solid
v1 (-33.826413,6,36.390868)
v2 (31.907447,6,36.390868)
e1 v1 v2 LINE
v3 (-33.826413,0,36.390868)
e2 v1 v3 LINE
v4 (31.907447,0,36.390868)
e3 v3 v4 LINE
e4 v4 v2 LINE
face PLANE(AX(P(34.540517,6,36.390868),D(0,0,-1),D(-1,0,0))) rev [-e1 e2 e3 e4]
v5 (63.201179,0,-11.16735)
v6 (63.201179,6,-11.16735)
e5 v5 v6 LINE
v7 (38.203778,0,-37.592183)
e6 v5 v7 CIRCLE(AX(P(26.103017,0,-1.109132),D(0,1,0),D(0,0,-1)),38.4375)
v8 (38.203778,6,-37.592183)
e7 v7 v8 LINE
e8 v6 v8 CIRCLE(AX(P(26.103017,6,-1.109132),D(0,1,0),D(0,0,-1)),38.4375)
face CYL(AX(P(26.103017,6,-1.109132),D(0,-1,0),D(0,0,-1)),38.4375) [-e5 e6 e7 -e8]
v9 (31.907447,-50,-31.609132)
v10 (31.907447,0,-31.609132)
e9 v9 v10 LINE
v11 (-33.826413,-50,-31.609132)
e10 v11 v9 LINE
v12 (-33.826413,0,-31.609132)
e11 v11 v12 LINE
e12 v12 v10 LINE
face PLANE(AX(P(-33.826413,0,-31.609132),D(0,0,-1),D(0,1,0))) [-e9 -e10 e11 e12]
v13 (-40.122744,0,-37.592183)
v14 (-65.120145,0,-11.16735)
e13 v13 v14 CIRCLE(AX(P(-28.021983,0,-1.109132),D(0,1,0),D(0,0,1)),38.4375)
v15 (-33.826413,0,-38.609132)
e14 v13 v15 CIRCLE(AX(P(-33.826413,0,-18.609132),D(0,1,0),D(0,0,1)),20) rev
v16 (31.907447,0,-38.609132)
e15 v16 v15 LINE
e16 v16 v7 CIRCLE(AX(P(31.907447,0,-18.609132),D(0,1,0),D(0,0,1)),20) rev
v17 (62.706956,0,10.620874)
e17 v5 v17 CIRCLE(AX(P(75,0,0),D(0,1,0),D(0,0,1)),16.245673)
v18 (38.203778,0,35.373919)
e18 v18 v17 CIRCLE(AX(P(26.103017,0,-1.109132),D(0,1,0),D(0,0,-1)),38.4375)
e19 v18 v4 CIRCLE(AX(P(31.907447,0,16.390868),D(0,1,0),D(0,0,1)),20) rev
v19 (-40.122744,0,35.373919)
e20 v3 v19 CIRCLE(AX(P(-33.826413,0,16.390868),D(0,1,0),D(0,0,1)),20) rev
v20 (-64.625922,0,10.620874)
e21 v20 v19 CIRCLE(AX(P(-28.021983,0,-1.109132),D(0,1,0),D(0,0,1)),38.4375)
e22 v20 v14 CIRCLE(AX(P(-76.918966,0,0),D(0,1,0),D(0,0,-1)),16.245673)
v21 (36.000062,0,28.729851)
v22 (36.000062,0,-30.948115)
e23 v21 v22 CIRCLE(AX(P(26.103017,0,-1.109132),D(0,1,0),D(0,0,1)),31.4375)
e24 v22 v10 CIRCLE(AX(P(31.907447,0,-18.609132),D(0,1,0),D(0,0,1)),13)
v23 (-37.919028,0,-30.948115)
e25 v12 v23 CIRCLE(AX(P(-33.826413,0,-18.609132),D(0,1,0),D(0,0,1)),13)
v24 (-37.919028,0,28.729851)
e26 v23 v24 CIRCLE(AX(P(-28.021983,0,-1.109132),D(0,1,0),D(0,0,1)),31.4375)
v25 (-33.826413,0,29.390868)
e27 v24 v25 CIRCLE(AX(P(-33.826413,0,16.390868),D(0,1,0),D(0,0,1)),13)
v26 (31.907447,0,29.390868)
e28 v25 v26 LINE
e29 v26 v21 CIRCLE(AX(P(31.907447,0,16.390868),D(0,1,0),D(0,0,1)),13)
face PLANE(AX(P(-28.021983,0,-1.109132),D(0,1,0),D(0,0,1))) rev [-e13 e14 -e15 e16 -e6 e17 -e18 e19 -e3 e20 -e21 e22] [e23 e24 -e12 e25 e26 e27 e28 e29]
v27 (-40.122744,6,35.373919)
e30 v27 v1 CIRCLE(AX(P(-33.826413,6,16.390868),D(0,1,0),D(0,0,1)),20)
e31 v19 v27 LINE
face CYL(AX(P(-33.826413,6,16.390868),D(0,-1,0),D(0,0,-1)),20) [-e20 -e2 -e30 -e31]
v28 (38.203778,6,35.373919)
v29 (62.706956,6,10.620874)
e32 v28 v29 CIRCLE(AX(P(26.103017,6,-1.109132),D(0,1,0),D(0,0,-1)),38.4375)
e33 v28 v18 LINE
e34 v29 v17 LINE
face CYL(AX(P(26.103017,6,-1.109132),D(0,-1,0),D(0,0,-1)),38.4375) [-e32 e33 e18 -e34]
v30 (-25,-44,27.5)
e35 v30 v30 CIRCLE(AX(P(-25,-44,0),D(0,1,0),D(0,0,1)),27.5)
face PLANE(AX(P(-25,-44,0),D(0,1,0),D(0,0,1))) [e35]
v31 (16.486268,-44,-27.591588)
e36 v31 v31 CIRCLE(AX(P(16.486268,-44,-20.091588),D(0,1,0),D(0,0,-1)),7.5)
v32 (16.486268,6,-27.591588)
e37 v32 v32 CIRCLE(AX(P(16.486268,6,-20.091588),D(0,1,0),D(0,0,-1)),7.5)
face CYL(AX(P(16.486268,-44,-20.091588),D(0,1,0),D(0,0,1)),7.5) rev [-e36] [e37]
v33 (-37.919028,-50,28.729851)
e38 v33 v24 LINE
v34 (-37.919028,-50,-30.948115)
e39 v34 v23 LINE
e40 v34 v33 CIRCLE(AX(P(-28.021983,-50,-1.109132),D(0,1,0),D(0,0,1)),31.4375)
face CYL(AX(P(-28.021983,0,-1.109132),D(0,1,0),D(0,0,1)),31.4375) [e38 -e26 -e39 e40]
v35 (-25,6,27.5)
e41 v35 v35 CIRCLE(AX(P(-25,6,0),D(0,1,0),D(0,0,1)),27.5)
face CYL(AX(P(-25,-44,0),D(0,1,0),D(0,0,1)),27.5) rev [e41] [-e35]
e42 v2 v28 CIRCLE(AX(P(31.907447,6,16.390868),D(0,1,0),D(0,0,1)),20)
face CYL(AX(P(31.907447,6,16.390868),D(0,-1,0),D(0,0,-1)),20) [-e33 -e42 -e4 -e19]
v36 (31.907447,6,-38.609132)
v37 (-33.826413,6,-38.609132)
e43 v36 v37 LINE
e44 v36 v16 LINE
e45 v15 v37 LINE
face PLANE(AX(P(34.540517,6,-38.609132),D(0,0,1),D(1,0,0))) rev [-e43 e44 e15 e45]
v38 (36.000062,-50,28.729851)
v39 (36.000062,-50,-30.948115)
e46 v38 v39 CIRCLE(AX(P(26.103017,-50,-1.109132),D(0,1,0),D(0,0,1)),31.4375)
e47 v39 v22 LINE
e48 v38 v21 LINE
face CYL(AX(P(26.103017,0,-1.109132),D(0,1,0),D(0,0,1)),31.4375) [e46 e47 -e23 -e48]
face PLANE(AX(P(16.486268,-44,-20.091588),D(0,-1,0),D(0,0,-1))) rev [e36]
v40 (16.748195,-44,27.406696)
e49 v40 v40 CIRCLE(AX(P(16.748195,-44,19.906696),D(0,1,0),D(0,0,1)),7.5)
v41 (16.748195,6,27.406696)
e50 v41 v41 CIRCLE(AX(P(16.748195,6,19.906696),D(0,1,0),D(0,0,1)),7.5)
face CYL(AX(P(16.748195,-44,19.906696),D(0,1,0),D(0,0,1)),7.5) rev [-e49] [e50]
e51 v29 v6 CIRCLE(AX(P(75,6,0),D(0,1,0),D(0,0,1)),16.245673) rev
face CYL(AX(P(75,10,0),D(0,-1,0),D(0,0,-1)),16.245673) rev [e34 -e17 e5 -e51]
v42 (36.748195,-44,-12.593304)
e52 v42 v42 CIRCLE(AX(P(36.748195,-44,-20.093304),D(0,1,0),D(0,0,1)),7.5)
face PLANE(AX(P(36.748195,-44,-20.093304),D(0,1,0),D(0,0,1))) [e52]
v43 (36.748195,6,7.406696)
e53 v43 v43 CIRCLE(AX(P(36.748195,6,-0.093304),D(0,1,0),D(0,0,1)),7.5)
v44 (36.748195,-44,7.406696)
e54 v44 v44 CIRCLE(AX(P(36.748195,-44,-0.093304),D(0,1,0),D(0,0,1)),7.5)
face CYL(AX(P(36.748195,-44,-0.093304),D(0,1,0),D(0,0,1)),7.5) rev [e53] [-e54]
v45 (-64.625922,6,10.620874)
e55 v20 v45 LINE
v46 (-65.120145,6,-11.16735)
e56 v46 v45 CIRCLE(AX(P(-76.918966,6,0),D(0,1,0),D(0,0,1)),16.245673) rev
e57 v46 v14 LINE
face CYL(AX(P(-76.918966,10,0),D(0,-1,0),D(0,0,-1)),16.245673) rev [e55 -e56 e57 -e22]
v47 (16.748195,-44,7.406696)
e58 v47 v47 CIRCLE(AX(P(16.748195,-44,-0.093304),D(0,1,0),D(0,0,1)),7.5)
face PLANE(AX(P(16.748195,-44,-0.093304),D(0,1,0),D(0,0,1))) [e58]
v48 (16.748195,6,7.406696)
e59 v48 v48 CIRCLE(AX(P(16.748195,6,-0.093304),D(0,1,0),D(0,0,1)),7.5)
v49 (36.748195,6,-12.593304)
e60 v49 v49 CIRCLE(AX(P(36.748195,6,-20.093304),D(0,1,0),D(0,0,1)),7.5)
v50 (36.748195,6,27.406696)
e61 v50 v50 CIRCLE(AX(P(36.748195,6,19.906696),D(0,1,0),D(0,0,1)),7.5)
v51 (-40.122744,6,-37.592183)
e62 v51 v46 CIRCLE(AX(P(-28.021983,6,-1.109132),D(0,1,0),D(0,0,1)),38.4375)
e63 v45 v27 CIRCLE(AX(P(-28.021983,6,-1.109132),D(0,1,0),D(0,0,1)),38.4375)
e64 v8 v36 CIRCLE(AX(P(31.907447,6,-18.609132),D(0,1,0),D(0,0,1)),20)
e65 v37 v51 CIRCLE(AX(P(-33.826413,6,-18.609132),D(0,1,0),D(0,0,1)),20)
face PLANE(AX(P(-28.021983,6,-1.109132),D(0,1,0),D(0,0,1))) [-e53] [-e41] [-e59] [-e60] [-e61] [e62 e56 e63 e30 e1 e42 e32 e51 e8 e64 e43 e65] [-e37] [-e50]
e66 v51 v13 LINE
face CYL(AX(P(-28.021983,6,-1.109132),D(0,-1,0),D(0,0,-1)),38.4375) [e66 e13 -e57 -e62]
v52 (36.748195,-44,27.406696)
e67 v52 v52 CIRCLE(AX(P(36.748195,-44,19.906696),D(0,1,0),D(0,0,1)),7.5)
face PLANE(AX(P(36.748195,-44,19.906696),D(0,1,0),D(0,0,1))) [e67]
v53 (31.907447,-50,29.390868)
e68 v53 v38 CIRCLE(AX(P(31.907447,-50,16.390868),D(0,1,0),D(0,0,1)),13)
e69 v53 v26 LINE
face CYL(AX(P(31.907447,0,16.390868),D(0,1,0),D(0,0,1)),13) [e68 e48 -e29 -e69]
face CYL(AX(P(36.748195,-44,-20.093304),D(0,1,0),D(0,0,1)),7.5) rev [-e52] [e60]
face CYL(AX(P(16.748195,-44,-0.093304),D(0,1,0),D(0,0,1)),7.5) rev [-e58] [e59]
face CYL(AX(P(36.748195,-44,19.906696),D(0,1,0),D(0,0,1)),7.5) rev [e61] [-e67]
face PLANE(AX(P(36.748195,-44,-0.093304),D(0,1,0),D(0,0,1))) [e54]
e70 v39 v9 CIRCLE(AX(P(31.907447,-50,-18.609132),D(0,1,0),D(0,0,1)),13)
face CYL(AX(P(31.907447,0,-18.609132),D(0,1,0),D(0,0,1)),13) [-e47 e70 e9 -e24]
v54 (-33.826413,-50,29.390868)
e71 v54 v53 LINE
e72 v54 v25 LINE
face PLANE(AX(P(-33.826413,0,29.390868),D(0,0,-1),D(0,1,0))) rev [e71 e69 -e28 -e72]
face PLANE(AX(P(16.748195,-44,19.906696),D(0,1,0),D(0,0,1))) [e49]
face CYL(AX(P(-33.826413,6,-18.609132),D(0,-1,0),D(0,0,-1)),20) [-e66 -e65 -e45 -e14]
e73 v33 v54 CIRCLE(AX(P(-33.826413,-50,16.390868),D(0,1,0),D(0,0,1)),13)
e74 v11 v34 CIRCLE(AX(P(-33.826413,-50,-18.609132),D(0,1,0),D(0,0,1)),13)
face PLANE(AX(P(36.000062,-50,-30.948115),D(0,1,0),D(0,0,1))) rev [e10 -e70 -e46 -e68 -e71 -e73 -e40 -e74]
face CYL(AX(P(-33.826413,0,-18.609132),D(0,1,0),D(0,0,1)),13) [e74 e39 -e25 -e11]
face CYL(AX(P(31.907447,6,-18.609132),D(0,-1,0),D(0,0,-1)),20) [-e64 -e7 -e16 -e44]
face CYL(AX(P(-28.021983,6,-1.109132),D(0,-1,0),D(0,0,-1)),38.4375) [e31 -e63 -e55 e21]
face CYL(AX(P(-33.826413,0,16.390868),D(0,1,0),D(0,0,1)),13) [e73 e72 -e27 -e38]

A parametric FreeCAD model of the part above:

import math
import FreeCAD as App
import Part
import Sketcher
from FreeCAD import Vector


def edges_at(feature, points):
    """Names of the edges that pass closest to the given points."""
    edges = feature.Shape.Edges
    near = lambda p: min(range(len(edges)), key=lambda i: edges[i].distToShape(Part.Vertex(*p))[0])
    return sorted({f"Edge{near(p) + 1}" for p in points})


def add_polygon(sketch, points):
    """Adds a closed chain of lines whose ends are joined by coincident constraints."""
    first, n = sketch.GeometryCount, len(points)
    for a, b in zip(points, points[1:] + points[:1]):
        sketch.addGeometry(Part.LineSegment(App.Vector(*a, 0), App.Vector(*b, 0)), False)
    for i in range(n):
        sketch.addConstraint(Sketcher.Constraint("Coincident", first + i, 2, first + (i + 1) % n, 1))

doc = App.newDocument("Part")
body = doc.addObject("PartDesign::Body", "Body")

sketch1 = body.newObject("Sketcher::SketchObject", "Sketch")
sketch1.AttachmentSupport = (doc.getObject("XZ_Plane"), [""])
sketch1.MapMode = "FlatFace"
sketch1.addGeometry([
    Part.LineSegment(Vector(35, -39, 0), Vector(-36, -39, 0)),
    Part.ArcOfCircle(Part.Circle(Vector(-28, -1, 0), Vector(0, 0, 1), 38), math.radians(103), math.radians(257)),
    Part.LineSegment(Vector(-36, 36, 0), Vector(35, 36, 0)),
    Part.ArcOfCircle(Part.Circle(Vector(26, -1, 0), Vector(0, 0, 1), 38), math.radians(-77), math.radians(77)),
], False)
sketch1.addConstraint([
    Sketcher.Constraint("Coincident", 0, 2, 1, 2),
    Sketcher.Constraint("Coincident", 1, 1, 2, 1),
    Sketcher.Constraint("Coincident", 2, 2, 3, 2),
    Sketcher.Constraint("Coincident", 3, 1, 0, 1),
    Sketcher.Constraint("Horizontal", 0),
    Sketcher.Constraint("Horizontal", 2),
    Sketcher.Constraint("Equal", 1, 3),
    Sketcher.Constraint("Horizontal", 1, 3, 3, 3),
    Sketcher.Constraint("Vertical", 0, 2, 1, 1),
    Sketcher.Constraint("DistanceX", 0, 2, 0, 1, 71.0),
    Sketcher.Constraint("DistanceY", 0, 2, 1, 1, 75.0),
    Sketcher.Constraint("Radius", 1, 38.4375),
    Sketcher.Constraint("DistanceY", 1, 3, -1, 1, 1.109132),
    Sketcher.Constraint("DistanceX", 1, 3, -1, 1, 28.021983),
])
pad1 = body.newObject("PartDesign::Pad", "Pad")
pad1.Profile = sketch1
pad1.Length = 6
pad1.Reversed = True
doc.recompute()

fillet = body.newObject("PartDesign::Fillet", "Fillet")
fillet.Base = (pad1, edges_at(pad1, [
    (-36.459, 3, -38.609),
    (34.541, 3, -38.609),
    (34.541, 3, 36.391),
    (-36.459, 3, 36.391),
]))
fillet.Radius = 20

sketch2 = body.newObject("Sketcher::SketchObject", "Sketch001")
sketch2.AttachmentSupport = (doc.getObject("YZ_Plane"), [""])
sketch2.MapMode = "FlatFace"
sketch2.AttachmentOffset = App.Placement(Vector(0, 0, 31.907447), App.Rotation())
add_polygon(sketch2, [(0, -28.6), (-50, -28.6), (-50, -31.6), (0, -31.6)])
sketch2.addConstraint([
    Sketcher.Constraint("Horizontal", 0),
    Sketcher.Constraint("Vertical", 1),
    Sketcher.Constraint("Horizontal", 2),
    Sketcher.Constraint("Vertical", 3),
    Sketcher.Constraint("PointOnObject", 2, 2, -2),
    Sketcher.Constraint("DistanceX", 0, 2, 0, 1, 50.0),
    Sketcher.Constraint("DistanceY", 1, 2, 1, 1, 3.0),
    Sketcher.Constraint("DistanceY", 0, 2, -1, 1, 28.609132),
])

sketch3 = body.newObject("Sketcher::SketchObject", "Sketch002")
sketch3.AttachmentSupport = (doc.getObject("XZ_Plane"), [""])
sketch3.MapMode = "FlatFace"
sketch3.addGeometry([
    Part.LineSegment(Vector(31.9, 29.4, 0), Vector(-33.8, 29.4, 0)),
    Part.ArcOfCircle(Part.Circle(Vector(-33.8, 16.4, 0), Vector(0, 0, 1), 13), math.radians(90), math.radians(108.35)),
    Part.ArcOfCircle(Part.Circle(Vector(-28, -1.1, 0), Vector(0, 0, 1), 31.4), math.radians(108), math.radians(252)),
    Part.ArcOfCircle(Part.Circle(Vector(-33.8, -18.6, 0), Vector(0, 0, 1), 13), math.radians(-108.35), math.radians(-90)),
    Part.LineSegment(Vector(-33.8, -31.6, 0), Vector(31.9, -31.6, 0)),
    Part.ArcOfCircle(Part.Circle(Vector(31.9, -18.6, 0), Vector(0, 0, 1), 13), math.radians(-90), math.radians(-71.65)),
    Part.ArcOfCircle(Part.Circle(Vector(26.1, -1.1, 0), Vector(0, 0, 1), 31.4), math.radians(-72), math.radians(72)),
    Part.ArcOfCircle(Part.Circle(Vector(31.9, 16.4, 0), Vector(0, 0, 1), 13), math.radians(71.65), math.radians(90)),
], False)
sketch3.addConstraint([
    Sketcher.Constraint("Tangent", 0, 2, 1, 1),
    Sketcher.Constraint("Tangent", 1, 2, 2, 1),
    Sketcher.Constraint("Tangent", 2, 2, 3, 1),
    Sketcher.Constraint("Tangent", 3, 2, 4, 1),
    Sketcher.Constraint("Tangent", 4, 2, 5, 1),
    Sketcher.Constraint("Tangent", 5, 2, 6, 1),
    Sketcher.Constraint("Tangent", 6, 2, 7, 1),
    Sketcher.Constraint("Tangent", 7, 2, 0, 1),
    Sketcher.Constraint("Horizontal", 0),
    Sketcher.Constraint("Horizontal", 4),
    Sketcher.Constraint("Equal", 1, 3),
    Sketcher.Constraint("Equal", 3, 5),
    Sketcher.Constraint("Equal", 2, 6),
    Sketcher.Constraint("Equal", 5, 7),
    Sketcher.Constraint("Horizontal", 2, 3, 6, 3),
    Sketcher.Constraint("Vertical", 1, 3, 3, 3),
    Sketcher.Constraint("Radius", 1, 13.0),
    Sketcher.Constraint("DistanceY", 3, 3, 1, 3, 35.0),
    Sketcher.Constraint("Radius", 2, 31.4375),
    Sketcher.Constraint("DistanceX", 2, 3, 6, 3, 54.125),
    Sketcher.Constraint("DistanceY", -1, 1, 1, 3, 16.390868),
    Sketcher.Constraint("DistanceX", -1, 1, 5, 2, 36.000062),
])
doc.recompute()

additivepipe = body.newObject("PartDesign::AdditivePipe", "AdditivePipe")
additivepipe.Profile = sketch2
additivepipe.Spine = (sketch3, ["Edge1", "Edge2", "Edge3", "Edge4", "Edge5", "Edge6", "Edge7", "Edge8"])

sketch4 = body.newObject("Sketcher::SketchObject", "Sketch003")
sketch4.AttachmentSupport = (doc.getObject("XZ_Plane"), [""])
sketch4.MapMode = "FlatFace"
sketch4.addGeometry([
    Part.Circle(Vector(75, 0, 0), Vector(0, 0, 1), 16),
    Part.Circle(Vector(-77, 0, 0), Vector(0, 0, 1), 16),
], False)
sketch4.addConstraint([
    Sketcher.Constraint("Equal", 0, 1),
    Sketcher.Constraint("PointOnObject", 0, 3, -1),
    Sketcher.Constraint("PointOnObject", 1, 3, -1),
    Sketcher.Constraint("DistanceX", -1, 1, 0, 3, 75.0),
    Sketcher.Constraint("Diameter", 0, 32.491346),
    Sketcher.Constraint("DistanceX", 1, 3, -1, 1, 76.918966),
])
pocket1 = body.newObject("PartDesign::Pocket", "Pocket")
pocket1.Profile = sketch4
pocket1.Length = 10

sketch5 = body.newObject("Sketcher::SketchObject", "Sketch004")
sketch5.AttachmentSupport = (doc.getObject("XZ_Plane"), [""])
sketch5.MapMode = "FlatFace"
sketch5.AttachmentOffset = App.Placement(Vector(0, 0, 50), App.Rotation())
sketch5.addGeometry([
    Part.LineSegment(Vector(31.9, 26.4, 0), Vector(-33.8, 26.4, 0)),
    Part.ArcOfCircle(Part.Circle(Vector(-33.8, 16.4, 0), Vector(0, 0, 1), 10), math.radians(90), math.radians(108.35)),
    Part.ArcOfCircle(Part.Circle(Vector(-28, -1.1, 0), Vector(0, 0, 1), 28.4), math.radians(108), math.radians(252)),
    Part.ArcOfCircle(Part.Circle(Vector(-33.8, -18.6, 0), Vector(0, 0, 1), 10), math.radians(-108.35), math.radians(-90)),
    Part.LineSegment(Vector(-33.8, -28.6, 0), Vector(31.9, -28.6, 0)),
    Part.ArcOfCircle(Part.Circle(Vector(31.9, -18.6, 0), Vector(0, 0, 1), 10), math.radians(-90), math.radians(-71.65)),
    Part.ArcOfCircle(Part.Circle(Vector(26.1, -1.1, 0), Vector(0, 0, 1), 28.4), math.radians(-72), math.radians(72)),
    Part.ArcOfCircle(Part.Circle(Vector(31.9, 16.4, 0), Vector(0, 0, 1), 10), math.radians(71.65), math.radians(90)),
], False)
sketch5.addConstraint([
    Sketcher.Constraint("Tangent", 0, 2, 1, 1),
    Sketcher.Constraint("Tangent", 1, 2, 2, 1),
    Sketcher.Constraint("Tangent", 2, 2, 3, 1),
    Sketcher.Constraint("Tangent", 3, 2, 4, 1),
    Sketcher.Constraint("Tangent", 4, 2, 5, 1),
    Sketcher.Constraint("Tangent", 5, 2, 6, 1),
    Sketcher.Constraint("Tangent", 6, 2, 7, 1),
    Sketcher.Constraint("Tangent", 7, 2, 0, 1),
    Sketcher.Constraint("Horizontal", 0),
    Sketcher.Constraint("Horizontal", 4),
    Sketcher.Constraint("Equal", 1, 3),
    Sketcher.Constraint("Equal", 3, 5),
    Sketcher.Constraint("Equal", 2, 6),
    Sketcher.Constraint("Equal", 5, 7),
    Sketcher.Constraint("Horizontal", 2, 3, 6, 3),
    Sketcher.Constraint("Vertical", 1, 3, 3, 3),
    Sketcher.Constraint("Radius", 1, 10.0),
    Sketcher.Constraint("DistanceY", 3, 3, 1, 3, 35.0),
    Sketcher.Constraint("Radius", 2, 28.4375),
    Sketcher.Constraint("DistanceX", 2, 3, 6, 3, 54.125),
    Sketcher.Constraint("DistanceY", -1, 1, 1, 3, 16.390868),
    Sketcher.Constraint("DistanceX", 1, 2, -1, 1, 36.974578),
])
pad2 = body.newObject("PartDesign::Pad", "Pad001")
pad2.Profile = sketch5
pad2.Length = 3
pad2.Reversed = True

sketch6 = body.newObject("Sketcher::SketchObject", "Sketch005")
sketch6.AttachmentSupport = (doc.getObject("XZ_Plane"), [""])
sketch6.MapMode = "FlatFace"
sketch6.addGeometry([
    Part.LineSegment(Vector(-33.8, -28.6, 0), Vector(31.9, -28.6, 0)),
    Part.ArcOfCircle(Part.Circle(Vector(31.9, -18.6, 0), Vector(0, 0, 1), 10), math.radians(-90), math.radians(-71.65)),
    Part.ArcOfCircle(Part.Circle(Vector(26.1, -1.1, 0), Vector(0, 0, 1), 28.4), math.radians(-72), math.radians(72)),
    Part.ArcOfCircle(Part.Circle(Vector(31.9, 16.4, 0), Vector(0, 0, 1), 10), math.radians(71.65), math.radians(90)),
    Part.LineSegment(Vector(31.9, 26.4, 0), Vector(-33.8, 26.4, 0)),
    Part.ArcOfCircle(Part.Circle(Vector(-33.8, 16.4, 0), Vector(0, 0, 1), 10), math.radians(90), math.radians(108.35)),
    Part.ArcOfCircle(Part.Circle(Vector(-28, -1.1, 0), Vector(0, 0, 1), 28.4), math.radians(108), math.radians(252)),
    Part.ArcOfCircle(Part.Circle(Vector(-33.8, -18.6, 0), Vector(0, 0, 1), 10), math.radians(-108.35), math.radians(-90)),
], False)
sketch6.addConstraint([
    Sketcher.Constraint("Tangent", 0, 2, 1, 1),
    Sketcher.Constraint("Tangent", 1, 2, 2, 1),
    Sketcher.Constraint("Tangent", 2, 2, 3, 1),
    Sketcher.Constraint("Tangent", 3, 2, 4, 1),
    Sketcher.Constraint("Tangent", 4, 2, 5, 1),
    Sketcher.Constraint("Tangent", 5, 2, 6, 1),
    Sketcher.Constraint("Tangent", 6, 2, 7, 1),
    Sketcher.Constraint("Tangent", 7, 2, 0, 1),
    Sketcher.Constraint("Horizontal", 0),
    Sketcher.Constraint("Horizontal", 4),
    Sketcher.Constraint("Equal", 1, 3),
    Sketcher.Constraint("Equal", 3, 5),
    Sketcher.Constraint("Equal", 2, 6),
    Sketcher.Constraint("Equal", 5, 7),
    Sketcher.Constraint("Horizontal", 2, 3, 6, 3),
    Sketcher.Constraint("Vertical", 1, 3, 3, 3),
    Sketcher.Constraint("Radius", 1, 10.0),
    Sketcher.Constraint("DistanceY", 1, 3, 3, 3, 35.0),
    Sketcher.Constraint("Radius", 2, 28.4375),
    Sketcher.Constraint("DistanceX", 6, 3, 2, 3, 54.125),
    Sketcher.Constraint("DistanceY", 1, 3, -1, 1, 18.609132),
    Sketcher.Constraint("DistanceX", 5, 2, -1, 1, 36.974578),
])
pocket2 = body.newObject("PartDesign::Pocket", "Pocket001")
pocket2.Profile = sketch6
pocket2.Length = 44

sketch7 = body.newObject("Sketcher::SketchObject", "Sketch006")
sketch7.AttachmentSupport = (doc.getObject("XZ_Plane"), [""])
sketch7.MapMode = "FlatFace"
sketch7.AttachmentOffset = App.Placement(Vector(0, 0, 47), App.Rotation())
sketch7.addGeometry([
    Part.LineSegment(Vector(31.9, -28.6, 0), Vector(-33.8, -28.6, 0)),
    Part.ArcOfCircle(Part.Circle(Vector(-33.8, -18.6, 0), Vector(0, 0, 1), 10), math.radians(-108.35), math.radians(-90)),
    Part.ArcOfCircle(Part.Circle(Vector(-28, -1.1, 0), Vector(0, 0, 1), 28.4), math.radians(108), math.radians(252)),
    Part.ArcOfCircle(Part.Circle(Vector(-33.8, 16.4, 0), Vector(0, 0, 1), 10), math.radians(90), math.radians(108.35)),
    Part.LineSegment(Vector(-33.8, 26.4, 0), Vector(31.9, 26.4, 0)),
    Part.ArcOfCircle(Part.Circle(Vector(31.9, 16.4, 0), Vector(0, 0, 1), 10), math.radians(71.65), math.radians(90)),
    Part.ArcOfCircle(Part.Circle(Vector(26.1, -1.1, 0), Vector(0, 0, 1), 28.4), math.radians(-72), math.radians(72)),
    Part.ArcOfCircle(Part.Circle(Vector(31.9, -18.6, 0), Vector(0, 0, 1), 10), math.radians(-90), math.radians(-71.65)),
], False)
sketch7.addConstraint([
    Sketcher.Constraint("Tangent", 0, 2, 1, 2),
    Sketcher.Constraint("Tangent", 1, 1, 2, 2),
    Sketcher.Constraint("Tangent", 2, 1, 3, 2),
    Sketcher.Constraint("Tangent", 3, 1, 4, 1),
    Sketcher.Constraint("Tangent", 4, 2, 5, 2),
    Sketcher.Constraint("Tangent", 5, 1, 6, 2),
    Sketcher.Constraint("Tangent", 6, 1, 7, 2),
    Sketcher.Constraint("Tangent", 7, 1, 0, 1),
    Sketcher.Constraint("Horizontal", 0),
    Sketcher.Constraint("Horizontal", 4),
    Sketcher.Constraint("Equal", 1, 3),
    Sketcher.Constraint("Equal", 3, 5),
    Sketcher.Constraint("Equal", 2, 6),
    Sketcher.Constraint("Equal", 5, 7),
    Sketcher.Constraint("Horizontal", 2, 3, 6, 3),
    Sketcher.Constraint("Vertical", 1, 3, 3, 3),
    Sketcher.Constraint("Radius", 1, 10.0),
    Sketcher.Constraint("DistanceY", 1, 3, 3, 3, 35.0),
    Sketcher.Constraint("Radius", 2, 28.4375),
    Sketcher.Constraint("DistanceX", 2, 3, 6, 3, 54.125),
    Sketcher.Constraint("DistanceY", 1, 3, -1, 1, 18.609132),
    Sketcher.Constraint("DistanceX", 1, 1, -1, 1, 36.974578),
])
pad3 = body.newObject("PartDesign::Pad", "Pad002")
pad3.Profile = sketch7
pad3.Length = 53
pad3.Reversed = True

sketch8 = body.newObject("Sketcher::SketchObject", "Sketch007")
sketch8.AttachmentSupport = (doc.getObject("XZ_Plane"), [""])
sketch8.MapMode = "FlatFace"
sketch8.AttachmentOffset = App.Placement(Vector(0, 0, -6), App.Rotation())
sketch8.addGeometry([
    Part.Circle(Vector(-25, 0, 0), Vector(0, 0, 1), 28),
    Part.Circle(Vector(17, 0, 0), Vector(0, 0, 1), 8),
    Part.Circle(Vector(17, 20, 0), Vector(0, 0, 1), 8),
    Part.Circle(Vector(16, -20, 0), Vector(0, 0, 1), 8),
    Part.Circle(Vector(37, 0, 0), Vector(0, 0, 1), 8),
    Part.Circle(Vector(37, 20, 0), Vector(0, 0, 1), 8),
    Part.Circle(Vector(37, -20, 0), Vector(0, 0, 1), 8),
], False)
sketch8.addConstraint([
    Sketcher.Constraint("Equal", 1, 2),
    Sketcher.Constraint("Equal", 2, 3),
    Sketcher.Constraint("Equal", 3, 4),
    Sketcher.Constraint("Equal", 4, 5),
    Sketcher.Constraint("Equal", 5, 6),
    Sketcher.Constraint("PointOnObject", 0, 3, -1),
    Sketcher.Constraint("Horizontal", 1, 3, 4, 3),
    Sketcher.Constraint("Horizontal", 2, 3, 5, 3),
    Sketcher.Constraint("Vertical", 1, 3, 2, 3),
    Sketcher.Constraint("Vertical", 4, 3, 5, 3),
    Sketcher.Constraint("Vertical", 5, 3, 6, 3),
    Sketcher.Constraint("Diameter", 0, 55.0),
    Sketcher.Constraint("Diameter", 1, 15.0),
    Sketcher.Constraint("DistanceX", 0, 3, -1, 1, 25.0),
    Sketcher.Constraint("DistanceY", 1, 3, 2, 3, 20.0),
    Sketcher.Constraint("DistanceX", 1, 3, 4, 3, 20.0),
    Sketcher.Constraint("DistanceY", 6, 3, 4, 3, 20.0),
    Sketcher.Constraint("DistanceX", -1, 1, 3, 3, 16.486268),
    Sketcher.Constraint("DistanceY", 3, 3, -1, 1, 20.091588),
    Sketcher.Constraint("DistanceX", -1, 1, 1, 3, 16.748195),
    Sketcher.Constraint("DistanceY", 1, 3, -1, 1, 0.093304),
])
pocket3 = body.newObject("PartDesign::Pocket", "Pocket002")
pocket3.Profile = sketch8
pocket3.Length = 50
pocket3.Reversed = True

doc.recompute()
